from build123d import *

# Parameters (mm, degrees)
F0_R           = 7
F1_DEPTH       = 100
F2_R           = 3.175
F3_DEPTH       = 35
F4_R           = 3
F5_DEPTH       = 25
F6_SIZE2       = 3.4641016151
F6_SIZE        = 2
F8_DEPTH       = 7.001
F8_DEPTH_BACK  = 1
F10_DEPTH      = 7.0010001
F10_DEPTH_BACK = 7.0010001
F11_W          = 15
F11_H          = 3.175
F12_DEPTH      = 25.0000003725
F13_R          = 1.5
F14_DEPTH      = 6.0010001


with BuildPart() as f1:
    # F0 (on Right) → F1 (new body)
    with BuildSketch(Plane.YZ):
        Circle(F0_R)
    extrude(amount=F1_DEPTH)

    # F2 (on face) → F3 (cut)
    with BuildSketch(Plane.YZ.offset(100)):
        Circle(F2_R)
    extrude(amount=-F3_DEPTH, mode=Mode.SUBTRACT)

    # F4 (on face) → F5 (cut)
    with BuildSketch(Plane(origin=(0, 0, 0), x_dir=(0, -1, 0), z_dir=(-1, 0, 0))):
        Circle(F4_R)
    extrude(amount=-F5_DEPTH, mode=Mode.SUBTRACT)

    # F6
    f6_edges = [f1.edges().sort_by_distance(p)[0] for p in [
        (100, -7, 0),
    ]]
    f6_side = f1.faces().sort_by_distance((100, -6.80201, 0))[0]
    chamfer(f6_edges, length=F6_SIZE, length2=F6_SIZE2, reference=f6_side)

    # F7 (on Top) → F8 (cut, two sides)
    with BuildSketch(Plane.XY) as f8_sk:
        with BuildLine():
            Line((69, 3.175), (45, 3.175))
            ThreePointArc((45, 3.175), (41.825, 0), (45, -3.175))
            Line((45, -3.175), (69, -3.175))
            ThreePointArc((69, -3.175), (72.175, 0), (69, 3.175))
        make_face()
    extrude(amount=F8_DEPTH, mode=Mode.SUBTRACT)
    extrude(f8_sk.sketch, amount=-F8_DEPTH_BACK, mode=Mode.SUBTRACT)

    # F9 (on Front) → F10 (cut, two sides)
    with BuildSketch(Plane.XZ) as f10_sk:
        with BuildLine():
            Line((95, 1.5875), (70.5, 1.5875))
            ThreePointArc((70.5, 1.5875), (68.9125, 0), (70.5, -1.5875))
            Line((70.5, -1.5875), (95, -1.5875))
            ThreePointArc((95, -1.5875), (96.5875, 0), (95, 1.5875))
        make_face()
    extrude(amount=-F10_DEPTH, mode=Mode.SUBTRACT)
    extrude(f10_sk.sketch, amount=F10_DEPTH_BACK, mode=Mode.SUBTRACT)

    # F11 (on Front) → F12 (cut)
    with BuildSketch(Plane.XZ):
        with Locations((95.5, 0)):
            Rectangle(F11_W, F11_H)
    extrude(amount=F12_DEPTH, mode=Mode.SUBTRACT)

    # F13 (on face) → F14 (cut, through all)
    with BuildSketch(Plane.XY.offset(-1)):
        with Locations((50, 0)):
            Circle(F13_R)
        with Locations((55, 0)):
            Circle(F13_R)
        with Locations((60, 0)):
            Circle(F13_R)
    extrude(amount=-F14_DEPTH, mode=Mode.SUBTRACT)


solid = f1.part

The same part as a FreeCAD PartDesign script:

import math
import FreeCAD as App
import Part
import Sketcher


def edges_at(feature, points):
    """Names of the edges that pass closest to the given points."""
    edges = feature.Shape.Edges
    near = lambda p: min(range(len(edges)), key=lambda i: edges[i].distToShape(Part.Vertex(*p))[0])
    return sorted({f"Edge{near(p) + 1}" for p in points})

doc = App.newDocument("Part")
params = doc.addObject("Spreadsheet::Sheet", "Params")
for row, (alias, value) in enumerate([
    ("sketch1_diameter", "14 mm"),
    ("pad1_length", "100 mm"),
    ("sketch2_diameter", "6.35 mm"),
    ("pocket1_length", "35 mm"),
    ("sketch3_diameter", "6 mm"),
    ("pocket2_length", "25 mm"),
    ("chamfer_size", "2 mm"),
    ("chamfer_size2", "3.464102 mm"),
    ("sketch4_width", "24 mm"),
    ("pocket3_length", "7.001 mm"),
    ("pocket3_length2", "1 mm"),
    ("sketch5_width", "24.5 mm"),
    ("sketch6_width", "15 mm"),
    ("pocket5_length", "25 mm"),
    ("sketch7_diameter", "3 mm"),
], start=1):
    params.set(f"A{row}", alias)
    params.set(f"B{row}", "=" + value)
    params.setAlias(f"B{row}", alias)

body = doc.addObject("PartDesign::Body", "Body")

sketch1 = body.newObject("Sketcher::SketchObject", "Sketch")
sketch1.AttachmentSupport = (doc.getObject("YZ_Plane"), [""])
sketch1.MapMode = "FlatFace"
sketch1.addGeometry(Part.Circle(App.Vector(0, 0, 0), App.Vector(0, 0, 1), 7), False)
sketch1.addConstraint(Sketcher.Constraint("Coincident", 0, 3, -1, 1))
sketch1.addConstraint(Sketcher.Constraint("Diameter", 0, 14.0))
sketch1.setExpression("Constraints[1]", "Params.sketch1_diameter")
pad1 = body.newObject("PartDesign::Pad", "Pad")
pad1.Profile = sketch1
pad1.setExpression("Length", "Params.pad1_length")

sketch2 = body.newObject("Sketcher::SketchObject", "Sketch001")
sketch2.AttachmentSupport = (doc.getObject("YZ_Plane"), [""])
sketch2.MapMode = "FlatFace"
sketch2.AttachmentOffset = App.Placement(App.Vector(0, 0, 100), App.Rotation())
sketch2.addGeometry(Part.Circle(App.Vector(0, 0, 0), App.Vector(0, 0, 1), 3.2), False)
sketch2.addConstraint(Sketcher.Constraint("Coincident", 0, 3, -1, 1))
sketch2.addConstraint(Sketcher.Constraint("Diameter", 0, 6.35))
sketch2.setExpression("Constraints[1]", "Params.sketch2_diameter")
pocket1 = body.newObject("PartDesign::Pocket", "Pocket")
pocket1.Profile = sketch2
pocket1.setExpression("Length", "Params.pocket1_length")

sketch3 = body.newObject("Sketcher::SketchObject", "Sketch002")
sketch3.AttachmentSupport = (doc.getObject("YZ_Plane"), [""])
sketch3.MapMode = "FlatFace"
sketch3.addGeometry(Part.Circle(App.Vector(0, 0, 0), App.Vector(0, 0, 1), 3), False)
sketch3.addConstraint(Sketcher.Constraint("Coincident", 0, 3, -1, 1))
sketch3.addConstraint(Sketcher.Constraint("Diameter", 0, 6.0))
sketch3.setExpression("Constraints[1]", "Params.sketch3_diameter")
pocket2 = body.newObject("PartDesign::Pocket", "Pocket001")
pocket2.Profile = sketch3
pocket2.setExpression("Length", "Params.pocket2_length")
pocket2.Reversed = True
doc.recompute()

chamfer = body.newObject("PartDesign::Chamfer", "Chamfer")
chamfer.Base = (pocket2, edges_at(pocket2, [(100, -7, 0)]))
chamfer.ChamferType = "Two distances"
chamfer.setExpression("Size", "Params.chamfer_size")
chamfer.setExpression("Size2", "Params.chamfer_size2")
chamfer.FlipDirection = True

sketch4 = body.newObject("Sketcher::SketchObject", "Sketch003")
sketch4.AttachmentSupport = (doc.getObject("XY_Plane"), [""])
sketch4.MapMode = "FlatFace"
sketch4.addGeometry(Part.LineSegment(App.Vector(69, 3.2, 0), App.Vector(45, 3.2, 0)), False)
sketch4.addGeometry(Part.ArcOfCircle(Part.Circle(App.Vector(45, 0, 0), App.Vector(0, 0, 1), 3.2), math.radians(90), math.radians(270)), False)
sketch4.addGeometry(Part.LineSegment(App.Vector(45, -3.2, 0), App.Vector(69, -3.2, 0)), False)
sketch4.addGeometry(Part.ArcOfCircle(Part.Circle(App.Vector(69, 0, 0), App.Vector(0, 0, 1), 3.2), math.radians(-90), math.radians(90)), False)
sketch4.addConstraint(Sketcher.Constraint("Tangent", 0, 2, 1, 1))
sketch4.addConstraint(Sketcher.Constraint("Tangent", 1, 2, 2, 1))
sketch4.addConstraint(Sketcher.Constraint("Tangent", 2, 2, 3, 1))
sketch4.addConstraint(Sketcher.Constraint("Tangent", 3, 2, 0, 1))
sketch4.addConstraint(Sketcher.Constraint("Horizontal", 0))
sketch4.addConstraint(Sketcher.Constraint("Horizontal", 2))
sketch4.addConstraint(Sketcher.Constraint("PointOnObject", 1, 3, -1))
sketch4.addConstraint(Sketcher.Constraint("DistanceX", 0, 2, 0, 1, 24.0))
sketch4.addConstraint(Sketcher.Constraint("DistanceX", -1, 1, 1, 3, 45.0))
sketch4.addConstraint(Sketcher.Constraint("Radius", 1, 3.175))
sketch4.setExpression("Constraints[7]", "Params.sketch4_width")
pocket3 = body.newObject("PartDesign::Pocket", "Pocket002")
pocket3.Profile = sketch4
pocket3.Type = "TwoLengths"
pocket3.setExpression("Length", "Params.pocket3_length")
pocket3.setExpression("Length2", "Params.pocket3_length2")
pocket3.Reversed = True

sketch5 = body.newObject("Sketcher::SketchObject", "Sketch004")
sketch5.AttachmentSupport = (doc.getObject("XZ_Plane"), [""])
sketch5.MapMode = "FlatFace"
sketch5.addGeometry(Part.LineSegment(App.Vector(95, 1.6, 0), App.Vector(70.5, 1.6, 0)), False)
sketch5.addGeometry(Part.ArcOfCircle(Part.Circle(App.Vector(70.5, 0, 0), App.Vector(0, 0, 1), 1.6), math.radians(90), math.radians(270)), False)
sketch5.addGeometry(Part.LineSegment(App.Vector(70.5, -1.6, 0), App.Vector(95, -1.6, 0)), False)
sketch5.addGeometry(Part.ArcOfCircle(Part.Circle(App.Vector(95, 0, 0), App.Vector(0, 0, 1), 1.6), math.radians(-90), math.radians(90)), False)
sketch5.addConstraint(Sketcher.Constraint("Tangent", 0, 2, 1, 1))
sketch5.addConstraint(Sketcher.Constraint("Tangent", 1, 2, 2, 1))
sketch5.addConstraint(Sketcher.Constraint("Tangent", 2, 2, 3, 1))
sketch5.addConstraint(Sketcher.Constraint("Tangent", 3, 2, 0, 1))
sketch5.addConstraint(Sketcher.Constraint("Horizontal", 0))
sketch5.addConstraint(Sketcher.Constraint("Horizontal", 2))
sketch5.addConstraint(Sketcher.Constraint("PointOnObject", 1, 3, -1))
sketch5.addConstraint(Sketcher.Constraint("DistanceX", 0, 2, 0, 1, 24.5))
sketch5.addConstraint(Sketcher.Constraint("DistanceX", -1, 1, 3, 3, 95.0))
sketch5.addConstraint(Sketcher.Constraint("Radius", 1, 1.5875))
sketch5.setExpression("Constraints[7]", "Params.sketch5_width")
pocket4 = body.newObject("PartDesign::Pocket", "Pocket003")
pocket4.Profile = sketch5
pocket4.Type = "ThroughAll"
pocket4.Midplane = True

sketch6 = body.newObject("Sketcher::SketchObject", "Sketch005")
sketch6.AttachmentSupport = (doc.getObject("XZ_Plane"), [""])
sketch6.MapMode = "FlatFace"
sketch6.addGeometry(Part.LineSegment(App.Vector(88, 1.6, 0), App.Vector(88, -1.6, 0)), False)
sketch6.addGeometry(Part.LineSegment(App.Vector(88, -1.6, 0), App.Vector(103, -1.6, 0)), False)
sketch6.addGeometry(Part.LineSegment(App.Vector(103, -1.6, 0), App.Vector(103, 1.6, 0)), False)
sketch6.addGeometry(Part.LineSegment(App.Vector(103, 1.6, 0), App.Vector(88, 1.6, 0)), False)
sketch6.addConstraint(Sketcher.Constraint("Coincident", 0, 2, 1, 1))
sketch6.addConstraint(Sketcher.Constraint("Coincident", 1, 2, 2, 1))
sketch6.addConstraint(Sketcher.Constraint("Coincident", 2, 2, 3, 1))
sketch6.addConstraint(Sketcher.Constraint("Coincident", 3, 2, 0, 1))
sketch6.addConstraint(Sketcher.Constraint("Vertical", 0))
sketch6.addConstraint(Sketcher.Constraint("Horizontal", 1))
sketch6.addConstraint(Sketcher.Constraint("Vertical", 2))
sketch6.addConstraint(Sketcher.Constraint("Horizontal", 3))
sketch6.addConstraint(Sketcher.Constraint("DistanceX", 1, 1, 1, 2, 15.0))
sketch6.addConstraint(Sketcher.Constraint("DistanceX", -1, 1, 0, 2, 88.0))
sketch6.addConstraint(Sketcher.Constraint("DistanceY", 0, 2, 0, 1, 3.175))
sketch6.addConstraint(Sketcher.Constraint("DistanceY", 0, 2, -1, 1, 1.5875))
sketch6.setExpression("Constraints[8]", "Params.sketch6_width")
pocket5 = body.newObject("PartDesign::Pocket", "Pocket004")
pocket5.Profile = sketch6
pocket5.setExpression("Length", "Params.pocket5_length")
pocket5.Reversed = True

sketch7 = body.newObject("Sketcher::SketchObject", "Sketch006")
sketch7.AttachmentSupport = (doc.getObject("XY_Plane"), [""])
sketch7.MapMode = "FlatFace"
sketch7.AttachmentOffset = App.Placement(App.Vector(0, 0, -1), App.Rotation())
sketch7.addGeometry(Part.Circle(App.Vector(50, 0, 0), App.Vector(0, 0, 1), 1.5), False)
sketch7.addGeometry(Part.Circle(App.Vector(55, 0, 0), App.Vector(0, 0, 1), 1.5), False)
sketch7.addGeometry(Part.Circle(App.Vector(60, 0, 0), App.Vector(0, 0, 1), 1.5), False)
sketch7.addConstraint(Sketcher.Constraint("Equal", 0, 1))
sketch7.addConstraint(Sketcher.Constraint("Equal", 1, 2))
sketch7.addConstraint(Sketcher.Constraint("PointOnObject", 0, 3, -1))
sketch7.addConstraint(Sketcher.Constraint("PointOnObject", 1, 3, -1))
sketch7.addConstraint(Sketcher.Constraint("PointOnObject", 2, 3, -1))
sketch7.addConstraint(Sketcher.Constraint("Diameter", 0, 3.0))
sketch7.addConstraint(Sketcher.Constraint("DistanceX", -1, 1, 0, 3, 50.0))
sketch7.addConstraint(Sketcher.Constraint("DistanceX", -1, 1, 1, 3, 55.0))
sketch7.addConstraint(Sketcher.Constraint("DistanceX", -1, 1, 2, 3, 60.0))
sketch7.setExpression("Constraints[5]", "Params.sketch7_diameter")
pocket6 = body.newObject("PartDesign::Pocket", "Pocket005")
pocket6.Profile = sketch7
pocket6.Type = "ThroughAll"

doc.recompute()
